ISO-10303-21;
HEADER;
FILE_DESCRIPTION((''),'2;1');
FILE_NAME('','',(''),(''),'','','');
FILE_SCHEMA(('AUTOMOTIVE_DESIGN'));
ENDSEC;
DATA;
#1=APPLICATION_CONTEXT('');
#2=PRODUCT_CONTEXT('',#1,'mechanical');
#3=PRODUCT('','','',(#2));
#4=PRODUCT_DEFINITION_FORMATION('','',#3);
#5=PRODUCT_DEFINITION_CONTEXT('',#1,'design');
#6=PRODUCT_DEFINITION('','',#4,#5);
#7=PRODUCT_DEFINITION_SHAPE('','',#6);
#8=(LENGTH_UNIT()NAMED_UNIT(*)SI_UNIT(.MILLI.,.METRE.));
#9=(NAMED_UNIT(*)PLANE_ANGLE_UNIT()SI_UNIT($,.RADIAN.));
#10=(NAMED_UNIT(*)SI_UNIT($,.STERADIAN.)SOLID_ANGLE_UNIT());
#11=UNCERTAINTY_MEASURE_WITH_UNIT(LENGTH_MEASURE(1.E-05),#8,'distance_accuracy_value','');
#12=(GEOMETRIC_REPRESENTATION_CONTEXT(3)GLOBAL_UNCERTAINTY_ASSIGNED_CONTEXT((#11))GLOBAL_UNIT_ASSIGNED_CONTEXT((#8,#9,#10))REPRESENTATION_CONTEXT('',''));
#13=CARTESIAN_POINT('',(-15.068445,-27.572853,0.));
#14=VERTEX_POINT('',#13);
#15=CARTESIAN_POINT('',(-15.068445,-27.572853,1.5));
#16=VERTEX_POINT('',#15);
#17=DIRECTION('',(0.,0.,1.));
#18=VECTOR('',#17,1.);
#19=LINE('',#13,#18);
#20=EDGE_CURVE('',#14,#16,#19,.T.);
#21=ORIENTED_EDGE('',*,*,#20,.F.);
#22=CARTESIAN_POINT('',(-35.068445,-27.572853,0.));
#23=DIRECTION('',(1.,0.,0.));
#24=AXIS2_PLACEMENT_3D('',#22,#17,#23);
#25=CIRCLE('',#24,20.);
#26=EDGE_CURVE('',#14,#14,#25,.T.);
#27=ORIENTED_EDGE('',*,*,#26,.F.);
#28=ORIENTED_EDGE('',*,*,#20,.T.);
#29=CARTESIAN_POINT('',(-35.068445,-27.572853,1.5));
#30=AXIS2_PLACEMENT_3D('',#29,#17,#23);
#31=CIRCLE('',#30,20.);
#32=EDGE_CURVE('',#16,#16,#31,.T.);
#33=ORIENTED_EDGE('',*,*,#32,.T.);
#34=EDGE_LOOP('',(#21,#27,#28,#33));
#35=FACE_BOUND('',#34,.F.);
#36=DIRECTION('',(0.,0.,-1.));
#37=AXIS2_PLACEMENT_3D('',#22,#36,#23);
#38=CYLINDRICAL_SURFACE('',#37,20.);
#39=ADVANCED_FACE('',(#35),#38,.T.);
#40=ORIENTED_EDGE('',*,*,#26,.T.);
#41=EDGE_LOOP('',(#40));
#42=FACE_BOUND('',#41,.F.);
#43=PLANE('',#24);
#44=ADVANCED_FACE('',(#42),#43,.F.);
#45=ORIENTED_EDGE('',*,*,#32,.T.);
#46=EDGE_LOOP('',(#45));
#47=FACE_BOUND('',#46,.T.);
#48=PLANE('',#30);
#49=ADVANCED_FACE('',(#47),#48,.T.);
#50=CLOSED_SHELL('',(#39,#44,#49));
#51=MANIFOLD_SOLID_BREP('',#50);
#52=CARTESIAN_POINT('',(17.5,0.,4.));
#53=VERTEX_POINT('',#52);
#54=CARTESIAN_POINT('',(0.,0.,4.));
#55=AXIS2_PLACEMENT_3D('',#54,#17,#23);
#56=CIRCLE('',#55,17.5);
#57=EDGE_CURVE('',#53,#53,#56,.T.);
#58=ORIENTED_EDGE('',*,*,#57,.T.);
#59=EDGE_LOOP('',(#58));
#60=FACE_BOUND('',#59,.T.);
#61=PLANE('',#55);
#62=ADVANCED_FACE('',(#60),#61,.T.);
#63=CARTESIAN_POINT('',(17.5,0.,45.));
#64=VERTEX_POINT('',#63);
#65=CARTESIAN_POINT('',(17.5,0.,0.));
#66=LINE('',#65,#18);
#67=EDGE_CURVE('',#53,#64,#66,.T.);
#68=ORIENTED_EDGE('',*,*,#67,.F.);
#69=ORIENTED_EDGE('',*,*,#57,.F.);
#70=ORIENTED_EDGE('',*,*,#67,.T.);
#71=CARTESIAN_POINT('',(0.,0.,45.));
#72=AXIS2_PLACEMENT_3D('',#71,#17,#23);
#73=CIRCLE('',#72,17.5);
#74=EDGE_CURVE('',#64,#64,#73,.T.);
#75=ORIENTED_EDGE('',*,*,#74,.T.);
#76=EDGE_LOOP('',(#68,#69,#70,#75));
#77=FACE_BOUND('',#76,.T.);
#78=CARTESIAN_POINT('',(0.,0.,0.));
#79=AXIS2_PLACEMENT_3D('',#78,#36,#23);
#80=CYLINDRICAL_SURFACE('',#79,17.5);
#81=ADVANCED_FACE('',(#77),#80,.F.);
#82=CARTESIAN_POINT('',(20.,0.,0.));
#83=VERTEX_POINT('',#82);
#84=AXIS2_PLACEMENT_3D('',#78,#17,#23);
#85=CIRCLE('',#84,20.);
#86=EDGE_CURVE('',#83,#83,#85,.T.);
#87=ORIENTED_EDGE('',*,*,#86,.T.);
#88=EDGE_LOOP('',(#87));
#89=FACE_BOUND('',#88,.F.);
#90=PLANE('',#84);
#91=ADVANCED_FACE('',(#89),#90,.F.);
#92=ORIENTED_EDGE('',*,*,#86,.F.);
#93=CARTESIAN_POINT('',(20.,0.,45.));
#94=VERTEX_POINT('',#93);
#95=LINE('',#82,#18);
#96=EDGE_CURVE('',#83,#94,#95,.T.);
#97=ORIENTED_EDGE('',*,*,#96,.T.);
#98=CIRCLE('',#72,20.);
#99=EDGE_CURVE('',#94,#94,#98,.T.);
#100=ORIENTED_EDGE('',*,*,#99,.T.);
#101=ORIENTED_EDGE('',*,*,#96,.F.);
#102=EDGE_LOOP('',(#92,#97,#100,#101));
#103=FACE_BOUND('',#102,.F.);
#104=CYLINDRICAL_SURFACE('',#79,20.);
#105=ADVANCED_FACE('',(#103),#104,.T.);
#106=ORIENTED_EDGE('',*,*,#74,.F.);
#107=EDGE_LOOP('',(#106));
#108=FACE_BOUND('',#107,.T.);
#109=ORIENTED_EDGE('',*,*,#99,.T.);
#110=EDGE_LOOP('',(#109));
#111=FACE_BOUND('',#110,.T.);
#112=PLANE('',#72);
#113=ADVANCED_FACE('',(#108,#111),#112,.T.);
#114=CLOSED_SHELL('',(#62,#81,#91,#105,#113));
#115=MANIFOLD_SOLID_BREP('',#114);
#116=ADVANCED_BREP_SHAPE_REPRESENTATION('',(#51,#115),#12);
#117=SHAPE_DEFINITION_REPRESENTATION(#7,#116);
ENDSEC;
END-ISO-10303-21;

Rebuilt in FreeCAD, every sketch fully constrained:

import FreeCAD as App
import Part
import Sketcher
from FreeCAD import Vector
Q = App.Units.Quantity

doc = App.newDocument("Part")
body = doc.addObject("PartDesign::Body", "Body")

# Sketch on XY plane
sketch1 = body.newObject("Sketcher::SketchObject", "Sketch")
sketch1.AttachmentSupport = (doc.getObject("XY_Plane"), [""])
sketch1.MapMode = "FlatFace"
sketch1.addGeometry(Part.Circle(Vector(-35, -28, 0), Vector(0, 0, 1), 20), False)
sketch1.addConstraint([
    Sketcher.Constraint("Diameter", 0, Q("40 mm")),
    Sketcher.Constraint("DistanceX", 0, 3, -1, 1, Q("35.068445 mm")),
    Sketcher.Constraint("DistanceY", 0, 3, -1, 1, Q("27.572853 mm")),
])
pad1 = body.newObject("PartDesign::Pad", "Pad")
pad1.Profile = sketch1
pad1.Length = 1.5
body2 = doc.addObject("PartDesign::Body", "Body001")

# Sketch on XY plane
sketch2 = body2.newObject("Sketcher::SketchObject", "Sketch001")
sketch2.AttachmentSupport = (doc.getObject("XY_Plane001"), [""])
sketch2.MapMode = "FlatFace"
sketch2.addGeometry(Part.Circle(Vector(0, 0, 0), Vector(0, 0, 1), 18), False)
sketch2.addConstraint([
    Sketcher.Constraint("Coincident", 0, 3, -1, 1),
    Sketcher.Constraint("Diameter", 0, Q("35 mm")),
])
pad2 = body2.newObject("PartDesign::Pad", "Pad001")
pad2.Profile = sketch2
pad2.Length = 4

# Sketch on XY plane
sketch3 = body2.newObject("Sketcher::SketchObject", "Sketch002")
sketch3.AttachmentSupport = (doc.getObject("XY_Plane001"), [""])
sketch3.MapMode = "FlatFace"
sketch3.addGeometry([
    Part.Circle(Vector(0, 0, 0), Vector(0, 0, 1), 20),
    Part.Circle(Vector(0, 0, 0), Vector(0, 0, 1), 18),
], False)
sketch3.addConstraint([
    Sketcher.Constraint("Coincident", 0, 3, -1, 1),
    Sketcher.Constraint("Coincident", 1, 3, -1, 1),
    Sketcher.Constraint("Diameter", 0, Q("40 mm")),
    Sketcher.Constraint("Diameter", 1, Q("35 mm")),
])
pad3 = body2.newObject("PartDesign::Pad", "Pad002")
pad3.Profile = sketch3
pad3.Length = 45

doc.recompute()
